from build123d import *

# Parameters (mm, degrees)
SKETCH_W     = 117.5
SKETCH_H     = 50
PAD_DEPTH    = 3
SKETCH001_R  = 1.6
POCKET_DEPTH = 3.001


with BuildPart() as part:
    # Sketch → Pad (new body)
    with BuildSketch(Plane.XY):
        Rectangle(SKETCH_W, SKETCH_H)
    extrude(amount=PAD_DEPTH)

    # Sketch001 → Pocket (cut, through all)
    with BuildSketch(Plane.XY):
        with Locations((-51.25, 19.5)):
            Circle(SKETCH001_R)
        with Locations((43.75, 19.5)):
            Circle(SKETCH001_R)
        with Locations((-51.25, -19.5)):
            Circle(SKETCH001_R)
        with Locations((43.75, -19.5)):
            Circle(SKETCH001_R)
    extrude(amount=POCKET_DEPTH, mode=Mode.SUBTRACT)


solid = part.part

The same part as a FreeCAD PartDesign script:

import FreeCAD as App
import Part
import Sketcher


def add_polygon(sketch, points):
    """Adds a closed chain of lines whose ends are joined by coincident constraints."""
    first, n = sketch.GeometryCount, len(points)
    for a, b in zip(points, points[1:] + points[:1]):
        sketch.addGeometry(Part.LineSegment(App.Vector(*a, 0), App.Vector(*b, 0)), False)
    for i in range(n):
        sketch.addConstraint(Sketcher.Constraint("Coincident", first + i, 2, first + (i + 1) % n, 1))

doc = App.newDocument("Part")
body = doc.addObject("PartDesign::Body", "Body")

sketch1 = body.newObject("Sketcher::SketchObject", "Sketch")
sketch1.AttachmentSupport = (doc.getObject("XY_Plane"), [""])
sketch1.MapMode = "FlatFace"
add_polygon(sketch1, [(-59, 25), (-59, -25), (59, -25), (59, 25)])
sketch1.addConstraint([
    Sketcher.Constraint("Vertical", 0),
    Sketcher.Constraint("Horizontal", 1),
    Sketcher.Constraint("Vertical", 2),
    Sketcher.Constraint("Horizontal", 3),
    Sketcher.Constraint("Symmetric", 0, 2, 2, 2, -1, 1),
    Sketcher.Constraint("DistanceY", 0, 2, 0, 1, 50.0),
    Sketcher.Constraint("DistanceX", 1, 1, 1, 2, 117.5),
])
pad1 = body.newObject("PartDesign::Pad", "Pad")
pad1.Profile = sketch1
pad1.Length = 3

sketch2 = body.newObject("Sketcher::SketchObject", "Sketch001")
sketch2.AttachmentSupport = (doc.getObject("XY_Plane"), [""])
sketch2.MapMode = "FlatFace"
sketch2.addGeometry([
    Part.Circle(App.Vector(-51.2, 19.5, 0), App.Vector(0, 0, 1), 1.6),
    Part.Circle(App.Vector(43.8, 19.5, 0), App.Vector(0, 0, 1), 1.6),
    Part.Circle(App.Vector(-51.2, -19.5, 0), App.Vector(0, 0, 1), 1.6),
    Part.Circle(App.Vector(43.8, -19.5, 0), App.Vector(0, 0, 1), 1.6),
], False)
sketch2.addConstraint([
    Sketcher.Constraint("Equal", 0, 1),
    Sketcher.Constraint("Equal", 1, 2),
    Sketcher.Constraint("Equal", 2, 3),
    Sketcher.Constraint("Symmetric", 0, 3, 2, 3, -1),
    Sketcher.Constraint("Symmetric", 1, 3, 3, 3, -1),
    Sketcher.Constraint("Horizontal", 0, 3, 1, 3),
    Sketcher.Constraint("Diameter", 0, 3.2),
    Sketcher.Constraint("DistanceX", 0, 3, 1, 3, 95.0),
    Sketcher.Constraint("DistanceY", 2, 3, 0, 3, 39.0),
    Sketcher.Constraint("DistanceX", 0, 3, -1, 1, 51.25),
])
pocket1 = body.newObject("PartDesign::Pocket", "Pocket")
pocket1.Profile = sketch2
pocket1.Type = "ThroughAll"
pocket1.Reversed = True

doc.recompute()
